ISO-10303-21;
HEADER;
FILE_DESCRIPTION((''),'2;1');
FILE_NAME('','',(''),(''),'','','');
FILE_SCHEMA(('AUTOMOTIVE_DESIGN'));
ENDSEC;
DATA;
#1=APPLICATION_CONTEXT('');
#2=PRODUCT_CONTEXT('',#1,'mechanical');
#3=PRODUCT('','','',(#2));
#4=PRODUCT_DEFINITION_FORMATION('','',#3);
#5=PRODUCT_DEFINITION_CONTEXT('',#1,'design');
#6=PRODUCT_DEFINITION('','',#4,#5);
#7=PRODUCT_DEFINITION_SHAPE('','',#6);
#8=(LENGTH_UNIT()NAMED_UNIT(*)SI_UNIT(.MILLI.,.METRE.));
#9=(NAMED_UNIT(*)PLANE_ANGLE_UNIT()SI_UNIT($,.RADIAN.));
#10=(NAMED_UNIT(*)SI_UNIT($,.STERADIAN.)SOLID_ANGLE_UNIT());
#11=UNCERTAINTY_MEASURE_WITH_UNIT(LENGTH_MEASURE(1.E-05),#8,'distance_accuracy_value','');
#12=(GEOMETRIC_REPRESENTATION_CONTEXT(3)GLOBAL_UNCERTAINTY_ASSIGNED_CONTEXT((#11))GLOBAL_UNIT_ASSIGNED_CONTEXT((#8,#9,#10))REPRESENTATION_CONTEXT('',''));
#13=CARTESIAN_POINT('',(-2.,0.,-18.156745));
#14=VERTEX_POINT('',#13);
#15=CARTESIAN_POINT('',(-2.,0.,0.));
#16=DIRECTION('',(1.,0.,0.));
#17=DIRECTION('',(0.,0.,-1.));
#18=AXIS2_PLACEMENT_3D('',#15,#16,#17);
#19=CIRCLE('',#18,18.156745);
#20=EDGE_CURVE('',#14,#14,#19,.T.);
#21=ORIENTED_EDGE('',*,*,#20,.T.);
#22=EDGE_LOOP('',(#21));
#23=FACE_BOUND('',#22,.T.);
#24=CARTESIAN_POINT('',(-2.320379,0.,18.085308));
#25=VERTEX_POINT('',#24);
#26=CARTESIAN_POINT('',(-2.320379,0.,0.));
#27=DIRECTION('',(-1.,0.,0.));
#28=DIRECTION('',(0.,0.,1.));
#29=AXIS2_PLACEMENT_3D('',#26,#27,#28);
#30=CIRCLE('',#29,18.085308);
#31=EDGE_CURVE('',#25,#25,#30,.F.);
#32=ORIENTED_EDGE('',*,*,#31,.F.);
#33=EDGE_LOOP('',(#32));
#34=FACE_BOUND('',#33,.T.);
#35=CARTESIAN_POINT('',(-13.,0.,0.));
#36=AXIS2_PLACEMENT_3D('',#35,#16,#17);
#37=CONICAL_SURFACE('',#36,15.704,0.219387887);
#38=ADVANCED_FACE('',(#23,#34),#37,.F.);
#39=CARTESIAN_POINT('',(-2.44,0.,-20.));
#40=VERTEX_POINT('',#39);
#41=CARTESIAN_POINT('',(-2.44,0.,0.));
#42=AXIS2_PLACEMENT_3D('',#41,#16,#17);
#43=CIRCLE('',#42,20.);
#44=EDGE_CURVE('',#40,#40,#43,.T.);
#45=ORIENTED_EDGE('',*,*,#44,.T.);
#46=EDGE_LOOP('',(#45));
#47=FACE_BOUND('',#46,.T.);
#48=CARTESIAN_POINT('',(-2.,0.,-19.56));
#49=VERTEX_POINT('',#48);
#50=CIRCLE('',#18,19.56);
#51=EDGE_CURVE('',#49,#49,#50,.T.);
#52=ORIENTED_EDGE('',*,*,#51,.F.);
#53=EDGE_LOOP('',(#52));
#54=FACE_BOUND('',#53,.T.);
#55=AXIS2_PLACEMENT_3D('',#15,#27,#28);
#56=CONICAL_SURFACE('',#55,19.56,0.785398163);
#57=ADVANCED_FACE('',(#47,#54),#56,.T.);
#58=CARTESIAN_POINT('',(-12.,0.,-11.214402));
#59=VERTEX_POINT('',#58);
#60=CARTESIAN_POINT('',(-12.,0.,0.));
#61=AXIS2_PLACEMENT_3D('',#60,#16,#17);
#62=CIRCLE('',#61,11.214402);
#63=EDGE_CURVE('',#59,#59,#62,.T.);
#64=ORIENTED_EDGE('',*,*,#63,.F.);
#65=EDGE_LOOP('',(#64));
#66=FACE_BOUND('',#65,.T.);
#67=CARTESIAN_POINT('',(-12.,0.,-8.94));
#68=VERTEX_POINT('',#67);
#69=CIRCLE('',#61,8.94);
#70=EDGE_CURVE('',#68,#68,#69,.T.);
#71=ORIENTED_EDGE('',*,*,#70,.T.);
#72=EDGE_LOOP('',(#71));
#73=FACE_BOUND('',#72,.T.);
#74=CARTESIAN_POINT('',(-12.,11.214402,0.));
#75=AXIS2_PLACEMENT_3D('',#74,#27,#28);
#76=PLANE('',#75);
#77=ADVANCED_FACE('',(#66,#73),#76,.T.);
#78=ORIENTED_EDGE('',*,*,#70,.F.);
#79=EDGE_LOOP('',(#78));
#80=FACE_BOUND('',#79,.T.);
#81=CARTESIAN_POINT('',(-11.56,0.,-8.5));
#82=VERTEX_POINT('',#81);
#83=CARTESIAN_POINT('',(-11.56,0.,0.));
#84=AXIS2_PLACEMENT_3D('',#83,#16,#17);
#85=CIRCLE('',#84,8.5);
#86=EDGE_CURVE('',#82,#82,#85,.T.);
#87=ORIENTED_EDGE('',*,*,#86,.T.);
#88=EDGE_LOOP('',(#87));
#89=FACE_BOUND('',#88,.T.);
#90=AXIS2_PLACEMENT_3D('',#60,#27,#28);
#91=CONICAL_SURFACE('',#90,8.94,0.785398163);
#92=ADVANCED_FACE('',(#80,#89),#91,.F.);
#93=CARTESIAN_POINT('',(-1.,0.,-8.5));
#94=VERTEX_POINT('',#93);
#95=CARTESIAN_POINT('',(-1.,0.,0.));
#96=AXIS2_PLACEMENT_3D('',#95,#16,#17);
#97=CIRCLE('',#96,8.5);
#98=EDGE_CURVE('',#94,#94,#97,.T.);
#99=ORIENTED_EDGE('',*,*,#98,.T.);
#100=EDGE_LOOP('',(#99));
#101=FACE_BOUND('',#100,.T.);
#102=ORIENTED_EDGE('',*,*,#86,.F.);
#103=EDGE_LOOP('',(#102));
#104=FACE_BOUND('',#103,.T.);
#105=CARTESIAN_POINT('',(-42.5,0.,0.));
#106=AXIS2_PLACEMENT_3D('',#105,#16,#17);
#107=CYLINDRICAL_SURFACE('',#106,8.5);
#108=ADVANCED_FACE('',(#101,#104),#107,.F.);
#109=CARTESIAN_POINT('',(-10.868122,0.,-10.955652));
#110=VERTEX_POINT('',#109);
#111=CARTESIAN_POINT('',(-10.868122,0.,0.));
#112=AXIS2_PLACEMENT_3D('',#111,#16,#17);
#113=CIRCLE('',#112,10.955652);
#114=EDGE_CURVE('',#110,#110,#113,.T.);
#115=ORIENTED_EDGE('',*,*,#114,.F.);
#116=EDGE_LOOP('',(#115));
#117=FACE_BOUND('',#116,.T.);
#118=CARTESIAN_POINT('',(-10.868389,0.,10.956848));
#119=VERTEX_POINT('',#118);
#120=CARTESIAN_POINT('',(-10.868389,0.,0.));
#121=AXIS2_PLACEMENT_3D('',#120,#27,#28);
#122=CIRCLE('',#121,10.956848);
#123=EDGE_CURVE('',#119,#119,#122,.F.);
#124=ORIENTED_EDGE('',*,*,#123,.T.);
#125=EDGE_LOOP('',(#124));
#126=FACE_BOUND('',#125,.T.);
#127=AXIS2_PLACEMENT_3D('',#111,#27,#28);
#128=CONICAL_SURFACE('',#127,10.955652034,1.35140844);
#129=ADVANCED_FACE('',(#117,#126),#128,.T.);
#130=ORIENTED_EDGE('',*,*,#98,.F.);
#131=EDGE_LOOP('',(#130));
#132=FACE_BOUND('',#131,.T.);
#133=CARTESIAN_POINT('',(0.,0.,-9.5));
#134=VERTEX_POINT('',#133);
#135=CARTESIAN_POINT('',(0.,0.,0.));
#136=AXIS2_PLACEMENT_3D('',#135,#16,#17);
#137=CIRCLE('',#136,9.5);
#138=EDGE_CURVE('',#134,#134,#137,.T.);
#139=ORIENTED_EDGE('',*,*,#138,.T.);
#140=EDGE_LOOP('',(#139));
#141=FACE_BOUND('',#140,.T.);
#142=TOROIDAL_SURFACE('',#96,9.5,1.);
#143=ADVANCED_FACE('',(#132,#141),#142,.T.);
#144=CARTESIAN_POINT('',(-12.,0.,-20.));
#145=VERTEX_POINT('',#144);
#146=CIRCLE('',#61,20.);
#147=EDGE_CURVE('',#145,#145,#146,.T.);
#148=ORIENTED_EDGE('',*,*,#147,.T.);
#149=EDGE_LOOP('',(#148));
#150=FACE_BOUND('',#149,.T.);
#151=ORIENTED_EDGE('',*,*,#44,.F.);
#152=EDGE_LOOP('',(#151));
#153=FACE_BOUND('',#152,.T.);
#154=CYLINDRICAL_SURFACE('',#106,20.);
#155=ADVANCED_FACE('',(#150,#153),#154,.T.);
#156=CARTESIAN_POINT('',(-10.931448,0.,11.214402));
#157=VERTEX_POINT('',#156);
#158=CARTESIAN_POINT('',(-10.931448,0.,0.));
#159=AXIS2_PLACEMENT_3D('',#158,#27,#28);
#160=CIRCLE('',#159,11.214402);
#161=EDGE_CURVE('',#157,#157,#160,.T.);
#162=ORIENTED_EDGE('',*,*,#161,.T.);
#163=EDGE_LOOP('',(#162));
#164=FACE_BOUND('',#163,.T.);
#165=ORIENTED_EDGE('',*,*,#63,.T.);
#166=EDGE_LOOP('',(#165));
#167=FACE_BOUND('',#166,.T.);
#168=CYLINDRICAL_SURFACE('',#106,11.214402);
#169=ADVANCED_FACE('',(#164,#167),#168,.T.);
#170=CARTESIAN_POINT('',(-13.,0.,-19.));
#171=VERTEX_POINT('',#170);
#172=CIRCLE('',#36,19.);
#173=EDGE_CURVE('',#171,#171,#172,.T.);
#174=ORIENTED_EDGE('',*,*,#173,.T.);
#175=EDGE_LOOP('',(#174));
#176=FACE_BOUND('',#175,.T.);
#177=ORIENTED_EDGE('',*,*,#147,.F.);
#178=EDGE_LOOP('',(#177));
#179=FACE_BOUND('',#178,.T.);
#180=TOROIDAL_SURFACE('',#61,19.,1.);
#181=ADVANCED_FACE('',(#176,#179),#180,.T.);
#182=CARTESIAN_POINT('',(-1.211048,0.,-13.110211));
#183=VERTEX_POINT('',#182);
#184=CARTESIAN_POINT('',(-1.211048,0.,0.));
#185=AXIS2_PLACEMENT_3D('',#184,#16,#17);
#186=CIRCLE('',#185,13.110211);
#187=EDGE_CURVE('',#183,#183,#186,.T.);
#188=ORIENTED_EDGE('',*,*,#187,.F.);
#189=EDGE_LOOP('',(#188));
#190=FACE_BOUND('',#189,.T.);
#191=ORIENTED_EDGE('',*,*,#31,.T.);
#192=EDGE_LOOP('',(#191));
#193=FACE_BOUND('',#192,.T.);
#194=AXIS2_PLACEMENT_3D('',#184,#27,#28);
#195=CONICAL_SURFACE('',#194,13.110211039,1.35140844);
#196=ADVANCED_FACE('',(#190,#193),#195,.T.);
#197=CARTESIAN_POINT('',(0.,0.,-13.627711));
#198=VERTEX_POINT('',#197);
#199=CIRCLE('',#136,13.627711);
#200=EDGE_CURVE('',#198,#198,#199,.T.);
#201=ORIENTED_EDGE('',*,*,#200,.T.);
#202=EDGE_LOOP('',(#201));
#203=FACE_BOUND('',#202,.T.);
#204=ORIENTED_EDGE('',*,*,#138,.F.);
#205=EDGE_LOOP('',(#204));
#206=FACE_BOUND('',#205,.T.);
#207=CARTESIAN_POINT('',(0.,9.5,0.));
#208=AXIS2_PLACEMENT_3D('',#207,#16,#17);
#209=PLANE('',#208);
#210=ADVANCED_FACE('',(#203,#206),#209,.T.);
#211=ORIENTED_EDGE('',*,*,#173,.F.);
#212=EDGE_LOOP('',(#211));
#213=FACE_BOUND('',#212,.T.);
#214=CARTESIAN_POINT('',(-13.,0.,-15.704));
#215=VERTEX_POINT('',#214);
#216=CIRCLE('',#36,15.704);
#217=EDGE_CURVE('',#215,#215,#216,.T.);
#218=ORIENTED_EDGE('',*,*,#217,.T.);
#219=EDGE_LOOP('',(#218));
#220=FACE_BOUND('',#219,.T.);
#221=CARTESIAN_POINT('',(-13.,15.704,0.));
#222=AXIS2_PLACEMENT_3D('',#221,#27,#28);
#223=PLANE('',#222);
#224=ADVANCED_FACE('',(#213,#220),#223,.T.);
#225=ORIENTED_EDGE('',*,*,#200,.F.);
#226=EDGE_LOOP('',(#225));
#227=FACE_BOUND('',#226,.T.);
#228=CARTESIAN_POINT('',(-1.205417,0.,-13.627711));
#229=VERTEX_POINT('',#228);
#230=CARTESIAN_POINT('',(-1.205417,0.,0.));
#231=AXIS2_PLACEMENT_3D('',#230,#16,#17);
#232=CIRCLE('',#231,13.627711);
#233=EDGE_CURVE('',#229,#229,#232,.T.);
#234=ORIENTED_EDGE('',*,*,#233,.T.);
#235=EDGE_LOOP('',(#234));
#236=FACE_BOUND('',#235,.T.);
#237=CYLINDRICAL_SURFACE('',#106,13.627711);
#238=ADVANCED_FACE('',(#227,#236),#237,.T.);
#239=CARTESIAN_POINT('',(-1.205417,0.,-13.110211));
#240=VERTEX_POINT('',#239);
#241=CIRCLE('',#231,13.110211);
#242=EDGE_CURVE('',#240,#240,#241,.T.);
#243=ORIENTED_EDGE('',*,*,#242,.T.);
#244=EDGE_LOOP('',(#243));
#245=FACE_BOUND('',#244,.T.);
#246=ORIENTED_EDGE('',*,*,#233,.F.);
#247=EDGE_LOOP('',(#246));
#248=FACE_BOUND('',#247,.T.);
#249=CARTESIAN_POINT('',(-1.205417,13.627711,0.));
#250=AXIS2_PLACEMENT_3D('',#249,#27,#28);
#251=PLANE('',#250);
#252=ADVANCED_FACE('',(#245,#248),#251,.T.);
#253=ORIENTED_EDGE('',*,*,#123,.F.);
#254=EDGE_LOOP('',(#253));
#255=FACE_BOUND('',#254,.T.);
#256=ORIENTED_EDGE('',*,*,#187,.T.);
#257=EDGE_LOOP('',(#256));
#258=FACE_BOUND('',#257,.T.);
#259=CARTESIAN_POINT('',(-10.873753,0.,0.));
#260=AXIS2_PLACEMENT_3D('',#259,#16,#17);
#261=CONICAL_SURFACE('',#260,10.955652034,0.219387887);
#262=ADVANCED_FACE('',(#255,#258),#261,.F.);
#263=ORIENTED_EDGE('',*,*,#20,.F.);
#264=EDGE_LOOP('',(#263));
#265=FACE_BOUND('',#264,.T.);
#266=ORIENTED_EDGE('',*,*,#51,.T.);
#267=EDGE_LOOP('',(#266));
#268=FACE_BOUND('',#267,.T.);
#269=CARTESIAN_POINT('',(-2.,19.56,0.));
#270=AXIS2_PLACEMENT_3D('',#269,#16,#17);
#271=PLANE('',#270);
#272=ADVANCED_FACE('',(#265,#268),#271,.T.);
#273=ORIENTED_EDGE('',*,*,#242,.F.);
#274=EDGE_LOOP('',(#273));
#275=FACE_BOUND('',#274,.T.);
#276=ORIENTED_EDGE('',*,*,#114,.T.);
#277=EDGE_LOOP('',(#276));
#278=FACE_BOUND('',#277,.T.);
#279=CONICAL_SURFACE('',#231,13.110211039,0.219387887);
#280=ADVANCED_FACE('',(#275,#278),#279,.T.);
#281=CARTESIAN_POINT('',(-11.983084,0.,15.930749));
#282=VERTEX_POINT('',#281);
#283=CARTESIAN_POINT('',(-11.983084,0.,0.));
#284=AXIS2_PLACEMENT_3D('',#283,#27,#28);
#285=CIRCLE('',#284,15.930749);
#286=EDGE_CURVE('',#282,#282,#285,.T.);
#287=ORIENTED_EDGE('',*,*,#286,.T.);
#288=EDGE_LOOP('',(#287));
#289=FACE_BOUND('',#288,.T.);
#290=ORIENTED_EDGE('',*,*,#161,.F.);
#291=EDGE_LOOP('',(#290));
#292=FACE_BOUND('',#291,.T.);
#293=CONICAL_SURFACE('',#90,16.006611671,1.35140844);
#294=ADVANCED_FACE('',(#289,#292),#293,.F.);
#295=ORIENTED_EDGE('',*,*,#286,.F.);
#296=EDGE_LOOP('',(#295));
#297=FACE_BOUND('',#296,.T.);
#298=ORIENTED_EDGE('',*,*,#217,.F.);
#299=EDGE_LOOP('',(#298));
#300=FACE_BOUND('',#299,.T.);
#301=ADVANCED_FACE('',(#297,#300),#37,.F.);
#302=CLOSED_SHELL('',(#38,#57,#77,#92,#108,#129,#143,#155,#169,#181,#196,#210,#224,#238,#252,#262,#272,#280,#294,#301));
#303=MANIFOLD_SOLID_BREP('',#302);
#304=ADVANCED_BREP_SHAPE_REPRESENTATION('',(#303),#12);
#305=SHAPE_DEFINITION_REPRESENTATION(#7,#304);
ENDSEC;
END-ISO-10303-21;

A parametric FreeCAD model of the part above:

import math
import FreeCAD as App
import Part
import Sketcher
from FreeCAD import Vector
Q = App.Units.Quantity

doc = App.newDocument("Part")
body = doc.addObject("PartDesign::Body", "Body")

sketch1 = body.newObject("Sketcher::SketchObject", "Sketch")
sketch1.AttachmentSupport = (doc.getObject("XY_Plane"), [""])
sketch1.MapMode = "FlatFace"
sketch1.addGeometry(Part.LineSegment(Vector(-13, 15.7, 0), Vector(-2, 18.2, 0)), False)
sketch1.addGeometry(Part.LineSegment(Vector(-2, 18.2, 0), Vector(-2, 19.6, 0)), False)
sketch1.addGeometry(Part.LineSegment(Vector(-2, 19.6, 0), Vector(-2.4, 20, 0)), False)
sketch1.addGeometry(Part.LineSegment(Vector(-2.4, 20, 0), Vector(-12, 20, 0)), False)
sketch1.addGeometry(Part.ArcOfCircle(Part.Circle(Vector(-12, 19, 0), Vector(0, 0, 1), 1), math.radians(90), math.radians(180)), False)
sketch1.addGeometry(Part.LineSegment(Vector(-13, 19, 0), Vector(-13, 15.7, 0)), False)
sketch1.addConstraint(Sketcher.Constraint("Coincident", 0, 2, 1, 1))
sketch1.addConstraint(Sketcher.Constraint("Coincident", 1, 2, 2, 1))
sketch1.addConstraint(Sketcher.Constraint("Coincident", 2, 2, 3, 1))
sketch1.addConstraint(Sketcher.Constraint("Tangent", 3, 2, 4, 1))
sketch1.addConstraint(Sketcher.Constraint("Tangent", 4, 2, 5, 1))
sketch1.addConstraint(Sketcher.Constraint("Coincident", 5, 2, 0, 1))
sketch1.addConstraint(Sketcher.Constraint("Vertical", 1))
sketch1.addConstraint(Sketcher.Constraint("Horizontal", 3))
sketch1.addConstraint(Sketcher.Constraint("Vertical", 5))
sketch1.addConstraint(Sketcher.Constraint("Radius", 4, 1.0))
sketch1.addConstraint(Sketcher.Constraint("Angle", 2, Q("135 deg")))
sketch1.addConstraint(Sketcher.Constraint("DistanceX", 4, 3, -1, 1, 12.0))
sketch1.addConstraint(Sketcher.Constraint("DistanceY", -1, 1, 4, 3, 19.0))
sketch1.addConstraint(Sketcher.Constraint("DistanceX", 0, 2, -1, 1, 2.0))
sketch1.addConstraint(Sketcher.Constraint("DistanceX", 3, 2, 3, 1, 9.56))
sketch1.addConstraint(Sketcher.Constraint("Angle", 0, Q("12.57 deg")))
sketch1.addConstraint(Sketcher.Constraint("DistanceY", 5, 2, 5, 1, 3.296))
revolution = body.newObject("PartDesign::Revolution", "Revolution")
revolution.Profile = sketch1
revolution.ReferenceAxis = (sketch1, ["H_Axis"])
revolution.Angle = 360

sketch2 = body.newObject("Sketcher::SketchObject", "Sketch001")
sketch2.AttachmentSupport = (doc.getObject("XY_Plane"), [""])
sketch2.MapMode = "FlatFace"
sketch2.addGeometry(Part.LineSegment(Vector(-2, 18, 0), Vector(-12, 16, 0)), False)
sketch2.addGeometry(Part.LineSegment(Vector(-12, 16, 0), Vector(-11, 11, 0)), False)
sketch2.addGeometry(Part.LineSegment(Vector(-11, 11, 0), Vector(-1, 13, 0)), False)
sketch2.addGeometry(Part.LineSegment(Vector(-1, 13, 0), Vector(-2, 18, 0)), False)
sketch2.addConstraint(Sketcher.Constraint("Coincident", 0, 2, 1, 1))
sketch2.addConstraint(Sketcher.Constraint("Coincident", 1, 2, 2, 1))
sketch2.addConstraint(Sketcher.Constraint("Coincident", 2, 2, 3, 1))
sketch2.addConstraint(Sketcher.Constraint("Coincident", 3, 2, 0, 1))
sketch2.addConstraint(Sketcher.Constraint("Perpendicular", 0, 1))
sketch2.addConstraint(Sketcher.Constraint("Perpendicular", 1, 2))
sketch2.addConstraint(Sketcher.Constraint("Perpendicular", 2, 3))
sketch2.addConstraint(Sketcher.Constraint("DistanceX", 0, 2, -1, 1, 12.0))
sketch2.addConstraint(Sketcher.Constraint("Distance", 0, 9.9))
sketch2.addConstraint(Sketcher.Constraint("Angle", 0, Q("-167.43 deg")))
sketch2.addConstraint(Sketcher.Constraint("Distance", 1, 5.175))
sketch2.addConstraint(Sketcher.Constraint("DistanceY", -1, 1, 0, 2, 16.006612))
revolution2 = body.newObject("PartDesign::Revolution", "Revolution001")
revolution2.Profile = sketch2
revolution2.ReferenceAxis = (sketch2, ["H_Axis"])
revolution2.Angle = 360

sketch3 = body.newObject("Sketcher::SketchObject", "Sketch002")
sketch3.AttachmentSupport = (doc.getObject("XY_Plane"), [""])
sketch3.MapMode = "FlatFace"
sketch3.addGeometry(Part.LineSegment(Vector(-10.93, 11.21, 0), Vector(-12, 11.21, 0)), False)
sketch3.addGeometry(Part.LineSegment(Vector(-12, 11.21, 0), Vector(-12, 8.94, 0)), False)
sketch3.addGeometry(Part.LineSegment(Vector(-12, 8.94, 0), Vector(-11.56, 8.5, 0)), False)
sketch3.addGeometry(Part.LineSegment(Vector(-11.56, 8.5, 0), Vector(-1, 8.5, 0)), False)
sketch3.addGeometry(Part.ArcOfCircle(Part.Circle(Vector(-1, 9.5, 0), Vector(0, 0, 1), 1), math.radians(-90), math.radians(0)), False)
sketch3.addGeometry(Part.LineSegment(Vector(0, 9.5, 0), Vector(0, 13.63, 0)), False)
sketch3.addGeometry(Part.LineSegment(Vector(0, 13.63, 0), Vector(-1.21, 13.63, 0)), False)
sketch3.addGeometry(Part.LineSegment(Vector(-1.21, 13.63, 0), Vector(-1.21, 13.11, 0)), False)
sketch3.addGeometry(Part.LineSegment(Vector(-1.21, 13.11, 0), Vector(-10.87, 10.96, 0)), False)
sketch3.addGeometry(Part.LineSegment(Vector(-10.87, 10.96, 0), Vector(-10.93, 11.21, 0)), False)
sketch3.addConstraint(Sketcher.Constraint("Coincident", 0, 2, 1, 1))
sketch3.addConstraint(Sketcher.Constraint("Coincident", 1, 2, 2, 1))
sketch3.addConstraint(Sketcher.Constraint("Coincident", 2, 2, 3, 1))
sketch3.addConstraint(Sketcher.Constraint("Tangent", 3, 2, 4, 1))
sketch3.addConstraint(Sketcher.Constraint("Tangent", 4, 2, 5, 1))
sketch3.addConstraint(Sketcher.Constraint("Coincident", 5, 2, 6, 1))
sketch3.addConstraint(Sketcher.Constraint("Coincident", 6, 2, 7, 1))
sketch3.addConstraint(Sketcher.Constraint("Coincident", 7, 2, 8, 1))
sketch3.addConstraint(Sketcher.Constraint("Coincident", 8, 2, 9, 1))
sketch3.addConstraint(Sketcher.Constraint("Coincident", 9, 2, 0, 1))
sketch3.addConstraint(Sketcher.Constraint("Horizontal", 0))
sketch3.addConstraint(Sketcher.Constraint("Vertical", 1))
sketch3.addConstraint(Sketcher.Constraint("Horizontal", 3))
sketch3.addConstraint(Sketcher.Constraint("Vertical", 5))
sketch3.addConstraint(Sketcher.Constraint("Horizontal", 6))
sketch3.addConstraint(Sketcher.Constraint("Vertical", 7))
sketch3.addConstraint(Sketcher.Constraint("PointOnObject", 4, 2, -2))
sketch3.addConstraint(Sketcher.Constraint("Perpendicular", 8, 9))
sketch3.addConstraint(Sketcher.Constraint("Radius", 4, 1.0))
sketch3.addConstraint(Sketcher.Constraint("Angle", 2, Q("-45 deg")))
sketch3.addConstraint(Sketcher.Constraint("DistanceX", 0, 2, -1, 1, 12.0))
sketch3.addConstraint(Sketcher.Constraint("Distance", 8, 9.9))
sketch3.addConstraint(Sketcher.Constraint("DistanceX", 3, 1, 3, 2, 10.56))
sketch3.addConstraint(Sketcher.Constraint("DistanceY", -1, 1, 4, 3, 9.5))
sketch3.addConstraint(Sketcher.Constraint("Angle", 8, Q("-167.43 deg")))
sketch3.addConstraint(Sketcher.Constraint("DistanceY", 7, 2, 7, 1, 0.5175))
sketch3.addConstraint(Sketcher.Constraint("DistanceY", 5, 1, 5, 2, 4.127711))
sketch3.addConstraint(Sketcher.Constraint("DistanceX", 9, 2, 7, 2, 9.720401))
sketch3.addConstraint(Sketcher.Constraint("DistanceX", 0, 2, 0, 1, 1.074183))
revolution3 = body.newObject("PartDesign::Revolution", "Revolution002")
revolution3.Profile = sketch3
revolution3.ReferenceAxis = (sketch3, ["H_Axis"])
revolution3.Angle = 360

doc.recompute()
